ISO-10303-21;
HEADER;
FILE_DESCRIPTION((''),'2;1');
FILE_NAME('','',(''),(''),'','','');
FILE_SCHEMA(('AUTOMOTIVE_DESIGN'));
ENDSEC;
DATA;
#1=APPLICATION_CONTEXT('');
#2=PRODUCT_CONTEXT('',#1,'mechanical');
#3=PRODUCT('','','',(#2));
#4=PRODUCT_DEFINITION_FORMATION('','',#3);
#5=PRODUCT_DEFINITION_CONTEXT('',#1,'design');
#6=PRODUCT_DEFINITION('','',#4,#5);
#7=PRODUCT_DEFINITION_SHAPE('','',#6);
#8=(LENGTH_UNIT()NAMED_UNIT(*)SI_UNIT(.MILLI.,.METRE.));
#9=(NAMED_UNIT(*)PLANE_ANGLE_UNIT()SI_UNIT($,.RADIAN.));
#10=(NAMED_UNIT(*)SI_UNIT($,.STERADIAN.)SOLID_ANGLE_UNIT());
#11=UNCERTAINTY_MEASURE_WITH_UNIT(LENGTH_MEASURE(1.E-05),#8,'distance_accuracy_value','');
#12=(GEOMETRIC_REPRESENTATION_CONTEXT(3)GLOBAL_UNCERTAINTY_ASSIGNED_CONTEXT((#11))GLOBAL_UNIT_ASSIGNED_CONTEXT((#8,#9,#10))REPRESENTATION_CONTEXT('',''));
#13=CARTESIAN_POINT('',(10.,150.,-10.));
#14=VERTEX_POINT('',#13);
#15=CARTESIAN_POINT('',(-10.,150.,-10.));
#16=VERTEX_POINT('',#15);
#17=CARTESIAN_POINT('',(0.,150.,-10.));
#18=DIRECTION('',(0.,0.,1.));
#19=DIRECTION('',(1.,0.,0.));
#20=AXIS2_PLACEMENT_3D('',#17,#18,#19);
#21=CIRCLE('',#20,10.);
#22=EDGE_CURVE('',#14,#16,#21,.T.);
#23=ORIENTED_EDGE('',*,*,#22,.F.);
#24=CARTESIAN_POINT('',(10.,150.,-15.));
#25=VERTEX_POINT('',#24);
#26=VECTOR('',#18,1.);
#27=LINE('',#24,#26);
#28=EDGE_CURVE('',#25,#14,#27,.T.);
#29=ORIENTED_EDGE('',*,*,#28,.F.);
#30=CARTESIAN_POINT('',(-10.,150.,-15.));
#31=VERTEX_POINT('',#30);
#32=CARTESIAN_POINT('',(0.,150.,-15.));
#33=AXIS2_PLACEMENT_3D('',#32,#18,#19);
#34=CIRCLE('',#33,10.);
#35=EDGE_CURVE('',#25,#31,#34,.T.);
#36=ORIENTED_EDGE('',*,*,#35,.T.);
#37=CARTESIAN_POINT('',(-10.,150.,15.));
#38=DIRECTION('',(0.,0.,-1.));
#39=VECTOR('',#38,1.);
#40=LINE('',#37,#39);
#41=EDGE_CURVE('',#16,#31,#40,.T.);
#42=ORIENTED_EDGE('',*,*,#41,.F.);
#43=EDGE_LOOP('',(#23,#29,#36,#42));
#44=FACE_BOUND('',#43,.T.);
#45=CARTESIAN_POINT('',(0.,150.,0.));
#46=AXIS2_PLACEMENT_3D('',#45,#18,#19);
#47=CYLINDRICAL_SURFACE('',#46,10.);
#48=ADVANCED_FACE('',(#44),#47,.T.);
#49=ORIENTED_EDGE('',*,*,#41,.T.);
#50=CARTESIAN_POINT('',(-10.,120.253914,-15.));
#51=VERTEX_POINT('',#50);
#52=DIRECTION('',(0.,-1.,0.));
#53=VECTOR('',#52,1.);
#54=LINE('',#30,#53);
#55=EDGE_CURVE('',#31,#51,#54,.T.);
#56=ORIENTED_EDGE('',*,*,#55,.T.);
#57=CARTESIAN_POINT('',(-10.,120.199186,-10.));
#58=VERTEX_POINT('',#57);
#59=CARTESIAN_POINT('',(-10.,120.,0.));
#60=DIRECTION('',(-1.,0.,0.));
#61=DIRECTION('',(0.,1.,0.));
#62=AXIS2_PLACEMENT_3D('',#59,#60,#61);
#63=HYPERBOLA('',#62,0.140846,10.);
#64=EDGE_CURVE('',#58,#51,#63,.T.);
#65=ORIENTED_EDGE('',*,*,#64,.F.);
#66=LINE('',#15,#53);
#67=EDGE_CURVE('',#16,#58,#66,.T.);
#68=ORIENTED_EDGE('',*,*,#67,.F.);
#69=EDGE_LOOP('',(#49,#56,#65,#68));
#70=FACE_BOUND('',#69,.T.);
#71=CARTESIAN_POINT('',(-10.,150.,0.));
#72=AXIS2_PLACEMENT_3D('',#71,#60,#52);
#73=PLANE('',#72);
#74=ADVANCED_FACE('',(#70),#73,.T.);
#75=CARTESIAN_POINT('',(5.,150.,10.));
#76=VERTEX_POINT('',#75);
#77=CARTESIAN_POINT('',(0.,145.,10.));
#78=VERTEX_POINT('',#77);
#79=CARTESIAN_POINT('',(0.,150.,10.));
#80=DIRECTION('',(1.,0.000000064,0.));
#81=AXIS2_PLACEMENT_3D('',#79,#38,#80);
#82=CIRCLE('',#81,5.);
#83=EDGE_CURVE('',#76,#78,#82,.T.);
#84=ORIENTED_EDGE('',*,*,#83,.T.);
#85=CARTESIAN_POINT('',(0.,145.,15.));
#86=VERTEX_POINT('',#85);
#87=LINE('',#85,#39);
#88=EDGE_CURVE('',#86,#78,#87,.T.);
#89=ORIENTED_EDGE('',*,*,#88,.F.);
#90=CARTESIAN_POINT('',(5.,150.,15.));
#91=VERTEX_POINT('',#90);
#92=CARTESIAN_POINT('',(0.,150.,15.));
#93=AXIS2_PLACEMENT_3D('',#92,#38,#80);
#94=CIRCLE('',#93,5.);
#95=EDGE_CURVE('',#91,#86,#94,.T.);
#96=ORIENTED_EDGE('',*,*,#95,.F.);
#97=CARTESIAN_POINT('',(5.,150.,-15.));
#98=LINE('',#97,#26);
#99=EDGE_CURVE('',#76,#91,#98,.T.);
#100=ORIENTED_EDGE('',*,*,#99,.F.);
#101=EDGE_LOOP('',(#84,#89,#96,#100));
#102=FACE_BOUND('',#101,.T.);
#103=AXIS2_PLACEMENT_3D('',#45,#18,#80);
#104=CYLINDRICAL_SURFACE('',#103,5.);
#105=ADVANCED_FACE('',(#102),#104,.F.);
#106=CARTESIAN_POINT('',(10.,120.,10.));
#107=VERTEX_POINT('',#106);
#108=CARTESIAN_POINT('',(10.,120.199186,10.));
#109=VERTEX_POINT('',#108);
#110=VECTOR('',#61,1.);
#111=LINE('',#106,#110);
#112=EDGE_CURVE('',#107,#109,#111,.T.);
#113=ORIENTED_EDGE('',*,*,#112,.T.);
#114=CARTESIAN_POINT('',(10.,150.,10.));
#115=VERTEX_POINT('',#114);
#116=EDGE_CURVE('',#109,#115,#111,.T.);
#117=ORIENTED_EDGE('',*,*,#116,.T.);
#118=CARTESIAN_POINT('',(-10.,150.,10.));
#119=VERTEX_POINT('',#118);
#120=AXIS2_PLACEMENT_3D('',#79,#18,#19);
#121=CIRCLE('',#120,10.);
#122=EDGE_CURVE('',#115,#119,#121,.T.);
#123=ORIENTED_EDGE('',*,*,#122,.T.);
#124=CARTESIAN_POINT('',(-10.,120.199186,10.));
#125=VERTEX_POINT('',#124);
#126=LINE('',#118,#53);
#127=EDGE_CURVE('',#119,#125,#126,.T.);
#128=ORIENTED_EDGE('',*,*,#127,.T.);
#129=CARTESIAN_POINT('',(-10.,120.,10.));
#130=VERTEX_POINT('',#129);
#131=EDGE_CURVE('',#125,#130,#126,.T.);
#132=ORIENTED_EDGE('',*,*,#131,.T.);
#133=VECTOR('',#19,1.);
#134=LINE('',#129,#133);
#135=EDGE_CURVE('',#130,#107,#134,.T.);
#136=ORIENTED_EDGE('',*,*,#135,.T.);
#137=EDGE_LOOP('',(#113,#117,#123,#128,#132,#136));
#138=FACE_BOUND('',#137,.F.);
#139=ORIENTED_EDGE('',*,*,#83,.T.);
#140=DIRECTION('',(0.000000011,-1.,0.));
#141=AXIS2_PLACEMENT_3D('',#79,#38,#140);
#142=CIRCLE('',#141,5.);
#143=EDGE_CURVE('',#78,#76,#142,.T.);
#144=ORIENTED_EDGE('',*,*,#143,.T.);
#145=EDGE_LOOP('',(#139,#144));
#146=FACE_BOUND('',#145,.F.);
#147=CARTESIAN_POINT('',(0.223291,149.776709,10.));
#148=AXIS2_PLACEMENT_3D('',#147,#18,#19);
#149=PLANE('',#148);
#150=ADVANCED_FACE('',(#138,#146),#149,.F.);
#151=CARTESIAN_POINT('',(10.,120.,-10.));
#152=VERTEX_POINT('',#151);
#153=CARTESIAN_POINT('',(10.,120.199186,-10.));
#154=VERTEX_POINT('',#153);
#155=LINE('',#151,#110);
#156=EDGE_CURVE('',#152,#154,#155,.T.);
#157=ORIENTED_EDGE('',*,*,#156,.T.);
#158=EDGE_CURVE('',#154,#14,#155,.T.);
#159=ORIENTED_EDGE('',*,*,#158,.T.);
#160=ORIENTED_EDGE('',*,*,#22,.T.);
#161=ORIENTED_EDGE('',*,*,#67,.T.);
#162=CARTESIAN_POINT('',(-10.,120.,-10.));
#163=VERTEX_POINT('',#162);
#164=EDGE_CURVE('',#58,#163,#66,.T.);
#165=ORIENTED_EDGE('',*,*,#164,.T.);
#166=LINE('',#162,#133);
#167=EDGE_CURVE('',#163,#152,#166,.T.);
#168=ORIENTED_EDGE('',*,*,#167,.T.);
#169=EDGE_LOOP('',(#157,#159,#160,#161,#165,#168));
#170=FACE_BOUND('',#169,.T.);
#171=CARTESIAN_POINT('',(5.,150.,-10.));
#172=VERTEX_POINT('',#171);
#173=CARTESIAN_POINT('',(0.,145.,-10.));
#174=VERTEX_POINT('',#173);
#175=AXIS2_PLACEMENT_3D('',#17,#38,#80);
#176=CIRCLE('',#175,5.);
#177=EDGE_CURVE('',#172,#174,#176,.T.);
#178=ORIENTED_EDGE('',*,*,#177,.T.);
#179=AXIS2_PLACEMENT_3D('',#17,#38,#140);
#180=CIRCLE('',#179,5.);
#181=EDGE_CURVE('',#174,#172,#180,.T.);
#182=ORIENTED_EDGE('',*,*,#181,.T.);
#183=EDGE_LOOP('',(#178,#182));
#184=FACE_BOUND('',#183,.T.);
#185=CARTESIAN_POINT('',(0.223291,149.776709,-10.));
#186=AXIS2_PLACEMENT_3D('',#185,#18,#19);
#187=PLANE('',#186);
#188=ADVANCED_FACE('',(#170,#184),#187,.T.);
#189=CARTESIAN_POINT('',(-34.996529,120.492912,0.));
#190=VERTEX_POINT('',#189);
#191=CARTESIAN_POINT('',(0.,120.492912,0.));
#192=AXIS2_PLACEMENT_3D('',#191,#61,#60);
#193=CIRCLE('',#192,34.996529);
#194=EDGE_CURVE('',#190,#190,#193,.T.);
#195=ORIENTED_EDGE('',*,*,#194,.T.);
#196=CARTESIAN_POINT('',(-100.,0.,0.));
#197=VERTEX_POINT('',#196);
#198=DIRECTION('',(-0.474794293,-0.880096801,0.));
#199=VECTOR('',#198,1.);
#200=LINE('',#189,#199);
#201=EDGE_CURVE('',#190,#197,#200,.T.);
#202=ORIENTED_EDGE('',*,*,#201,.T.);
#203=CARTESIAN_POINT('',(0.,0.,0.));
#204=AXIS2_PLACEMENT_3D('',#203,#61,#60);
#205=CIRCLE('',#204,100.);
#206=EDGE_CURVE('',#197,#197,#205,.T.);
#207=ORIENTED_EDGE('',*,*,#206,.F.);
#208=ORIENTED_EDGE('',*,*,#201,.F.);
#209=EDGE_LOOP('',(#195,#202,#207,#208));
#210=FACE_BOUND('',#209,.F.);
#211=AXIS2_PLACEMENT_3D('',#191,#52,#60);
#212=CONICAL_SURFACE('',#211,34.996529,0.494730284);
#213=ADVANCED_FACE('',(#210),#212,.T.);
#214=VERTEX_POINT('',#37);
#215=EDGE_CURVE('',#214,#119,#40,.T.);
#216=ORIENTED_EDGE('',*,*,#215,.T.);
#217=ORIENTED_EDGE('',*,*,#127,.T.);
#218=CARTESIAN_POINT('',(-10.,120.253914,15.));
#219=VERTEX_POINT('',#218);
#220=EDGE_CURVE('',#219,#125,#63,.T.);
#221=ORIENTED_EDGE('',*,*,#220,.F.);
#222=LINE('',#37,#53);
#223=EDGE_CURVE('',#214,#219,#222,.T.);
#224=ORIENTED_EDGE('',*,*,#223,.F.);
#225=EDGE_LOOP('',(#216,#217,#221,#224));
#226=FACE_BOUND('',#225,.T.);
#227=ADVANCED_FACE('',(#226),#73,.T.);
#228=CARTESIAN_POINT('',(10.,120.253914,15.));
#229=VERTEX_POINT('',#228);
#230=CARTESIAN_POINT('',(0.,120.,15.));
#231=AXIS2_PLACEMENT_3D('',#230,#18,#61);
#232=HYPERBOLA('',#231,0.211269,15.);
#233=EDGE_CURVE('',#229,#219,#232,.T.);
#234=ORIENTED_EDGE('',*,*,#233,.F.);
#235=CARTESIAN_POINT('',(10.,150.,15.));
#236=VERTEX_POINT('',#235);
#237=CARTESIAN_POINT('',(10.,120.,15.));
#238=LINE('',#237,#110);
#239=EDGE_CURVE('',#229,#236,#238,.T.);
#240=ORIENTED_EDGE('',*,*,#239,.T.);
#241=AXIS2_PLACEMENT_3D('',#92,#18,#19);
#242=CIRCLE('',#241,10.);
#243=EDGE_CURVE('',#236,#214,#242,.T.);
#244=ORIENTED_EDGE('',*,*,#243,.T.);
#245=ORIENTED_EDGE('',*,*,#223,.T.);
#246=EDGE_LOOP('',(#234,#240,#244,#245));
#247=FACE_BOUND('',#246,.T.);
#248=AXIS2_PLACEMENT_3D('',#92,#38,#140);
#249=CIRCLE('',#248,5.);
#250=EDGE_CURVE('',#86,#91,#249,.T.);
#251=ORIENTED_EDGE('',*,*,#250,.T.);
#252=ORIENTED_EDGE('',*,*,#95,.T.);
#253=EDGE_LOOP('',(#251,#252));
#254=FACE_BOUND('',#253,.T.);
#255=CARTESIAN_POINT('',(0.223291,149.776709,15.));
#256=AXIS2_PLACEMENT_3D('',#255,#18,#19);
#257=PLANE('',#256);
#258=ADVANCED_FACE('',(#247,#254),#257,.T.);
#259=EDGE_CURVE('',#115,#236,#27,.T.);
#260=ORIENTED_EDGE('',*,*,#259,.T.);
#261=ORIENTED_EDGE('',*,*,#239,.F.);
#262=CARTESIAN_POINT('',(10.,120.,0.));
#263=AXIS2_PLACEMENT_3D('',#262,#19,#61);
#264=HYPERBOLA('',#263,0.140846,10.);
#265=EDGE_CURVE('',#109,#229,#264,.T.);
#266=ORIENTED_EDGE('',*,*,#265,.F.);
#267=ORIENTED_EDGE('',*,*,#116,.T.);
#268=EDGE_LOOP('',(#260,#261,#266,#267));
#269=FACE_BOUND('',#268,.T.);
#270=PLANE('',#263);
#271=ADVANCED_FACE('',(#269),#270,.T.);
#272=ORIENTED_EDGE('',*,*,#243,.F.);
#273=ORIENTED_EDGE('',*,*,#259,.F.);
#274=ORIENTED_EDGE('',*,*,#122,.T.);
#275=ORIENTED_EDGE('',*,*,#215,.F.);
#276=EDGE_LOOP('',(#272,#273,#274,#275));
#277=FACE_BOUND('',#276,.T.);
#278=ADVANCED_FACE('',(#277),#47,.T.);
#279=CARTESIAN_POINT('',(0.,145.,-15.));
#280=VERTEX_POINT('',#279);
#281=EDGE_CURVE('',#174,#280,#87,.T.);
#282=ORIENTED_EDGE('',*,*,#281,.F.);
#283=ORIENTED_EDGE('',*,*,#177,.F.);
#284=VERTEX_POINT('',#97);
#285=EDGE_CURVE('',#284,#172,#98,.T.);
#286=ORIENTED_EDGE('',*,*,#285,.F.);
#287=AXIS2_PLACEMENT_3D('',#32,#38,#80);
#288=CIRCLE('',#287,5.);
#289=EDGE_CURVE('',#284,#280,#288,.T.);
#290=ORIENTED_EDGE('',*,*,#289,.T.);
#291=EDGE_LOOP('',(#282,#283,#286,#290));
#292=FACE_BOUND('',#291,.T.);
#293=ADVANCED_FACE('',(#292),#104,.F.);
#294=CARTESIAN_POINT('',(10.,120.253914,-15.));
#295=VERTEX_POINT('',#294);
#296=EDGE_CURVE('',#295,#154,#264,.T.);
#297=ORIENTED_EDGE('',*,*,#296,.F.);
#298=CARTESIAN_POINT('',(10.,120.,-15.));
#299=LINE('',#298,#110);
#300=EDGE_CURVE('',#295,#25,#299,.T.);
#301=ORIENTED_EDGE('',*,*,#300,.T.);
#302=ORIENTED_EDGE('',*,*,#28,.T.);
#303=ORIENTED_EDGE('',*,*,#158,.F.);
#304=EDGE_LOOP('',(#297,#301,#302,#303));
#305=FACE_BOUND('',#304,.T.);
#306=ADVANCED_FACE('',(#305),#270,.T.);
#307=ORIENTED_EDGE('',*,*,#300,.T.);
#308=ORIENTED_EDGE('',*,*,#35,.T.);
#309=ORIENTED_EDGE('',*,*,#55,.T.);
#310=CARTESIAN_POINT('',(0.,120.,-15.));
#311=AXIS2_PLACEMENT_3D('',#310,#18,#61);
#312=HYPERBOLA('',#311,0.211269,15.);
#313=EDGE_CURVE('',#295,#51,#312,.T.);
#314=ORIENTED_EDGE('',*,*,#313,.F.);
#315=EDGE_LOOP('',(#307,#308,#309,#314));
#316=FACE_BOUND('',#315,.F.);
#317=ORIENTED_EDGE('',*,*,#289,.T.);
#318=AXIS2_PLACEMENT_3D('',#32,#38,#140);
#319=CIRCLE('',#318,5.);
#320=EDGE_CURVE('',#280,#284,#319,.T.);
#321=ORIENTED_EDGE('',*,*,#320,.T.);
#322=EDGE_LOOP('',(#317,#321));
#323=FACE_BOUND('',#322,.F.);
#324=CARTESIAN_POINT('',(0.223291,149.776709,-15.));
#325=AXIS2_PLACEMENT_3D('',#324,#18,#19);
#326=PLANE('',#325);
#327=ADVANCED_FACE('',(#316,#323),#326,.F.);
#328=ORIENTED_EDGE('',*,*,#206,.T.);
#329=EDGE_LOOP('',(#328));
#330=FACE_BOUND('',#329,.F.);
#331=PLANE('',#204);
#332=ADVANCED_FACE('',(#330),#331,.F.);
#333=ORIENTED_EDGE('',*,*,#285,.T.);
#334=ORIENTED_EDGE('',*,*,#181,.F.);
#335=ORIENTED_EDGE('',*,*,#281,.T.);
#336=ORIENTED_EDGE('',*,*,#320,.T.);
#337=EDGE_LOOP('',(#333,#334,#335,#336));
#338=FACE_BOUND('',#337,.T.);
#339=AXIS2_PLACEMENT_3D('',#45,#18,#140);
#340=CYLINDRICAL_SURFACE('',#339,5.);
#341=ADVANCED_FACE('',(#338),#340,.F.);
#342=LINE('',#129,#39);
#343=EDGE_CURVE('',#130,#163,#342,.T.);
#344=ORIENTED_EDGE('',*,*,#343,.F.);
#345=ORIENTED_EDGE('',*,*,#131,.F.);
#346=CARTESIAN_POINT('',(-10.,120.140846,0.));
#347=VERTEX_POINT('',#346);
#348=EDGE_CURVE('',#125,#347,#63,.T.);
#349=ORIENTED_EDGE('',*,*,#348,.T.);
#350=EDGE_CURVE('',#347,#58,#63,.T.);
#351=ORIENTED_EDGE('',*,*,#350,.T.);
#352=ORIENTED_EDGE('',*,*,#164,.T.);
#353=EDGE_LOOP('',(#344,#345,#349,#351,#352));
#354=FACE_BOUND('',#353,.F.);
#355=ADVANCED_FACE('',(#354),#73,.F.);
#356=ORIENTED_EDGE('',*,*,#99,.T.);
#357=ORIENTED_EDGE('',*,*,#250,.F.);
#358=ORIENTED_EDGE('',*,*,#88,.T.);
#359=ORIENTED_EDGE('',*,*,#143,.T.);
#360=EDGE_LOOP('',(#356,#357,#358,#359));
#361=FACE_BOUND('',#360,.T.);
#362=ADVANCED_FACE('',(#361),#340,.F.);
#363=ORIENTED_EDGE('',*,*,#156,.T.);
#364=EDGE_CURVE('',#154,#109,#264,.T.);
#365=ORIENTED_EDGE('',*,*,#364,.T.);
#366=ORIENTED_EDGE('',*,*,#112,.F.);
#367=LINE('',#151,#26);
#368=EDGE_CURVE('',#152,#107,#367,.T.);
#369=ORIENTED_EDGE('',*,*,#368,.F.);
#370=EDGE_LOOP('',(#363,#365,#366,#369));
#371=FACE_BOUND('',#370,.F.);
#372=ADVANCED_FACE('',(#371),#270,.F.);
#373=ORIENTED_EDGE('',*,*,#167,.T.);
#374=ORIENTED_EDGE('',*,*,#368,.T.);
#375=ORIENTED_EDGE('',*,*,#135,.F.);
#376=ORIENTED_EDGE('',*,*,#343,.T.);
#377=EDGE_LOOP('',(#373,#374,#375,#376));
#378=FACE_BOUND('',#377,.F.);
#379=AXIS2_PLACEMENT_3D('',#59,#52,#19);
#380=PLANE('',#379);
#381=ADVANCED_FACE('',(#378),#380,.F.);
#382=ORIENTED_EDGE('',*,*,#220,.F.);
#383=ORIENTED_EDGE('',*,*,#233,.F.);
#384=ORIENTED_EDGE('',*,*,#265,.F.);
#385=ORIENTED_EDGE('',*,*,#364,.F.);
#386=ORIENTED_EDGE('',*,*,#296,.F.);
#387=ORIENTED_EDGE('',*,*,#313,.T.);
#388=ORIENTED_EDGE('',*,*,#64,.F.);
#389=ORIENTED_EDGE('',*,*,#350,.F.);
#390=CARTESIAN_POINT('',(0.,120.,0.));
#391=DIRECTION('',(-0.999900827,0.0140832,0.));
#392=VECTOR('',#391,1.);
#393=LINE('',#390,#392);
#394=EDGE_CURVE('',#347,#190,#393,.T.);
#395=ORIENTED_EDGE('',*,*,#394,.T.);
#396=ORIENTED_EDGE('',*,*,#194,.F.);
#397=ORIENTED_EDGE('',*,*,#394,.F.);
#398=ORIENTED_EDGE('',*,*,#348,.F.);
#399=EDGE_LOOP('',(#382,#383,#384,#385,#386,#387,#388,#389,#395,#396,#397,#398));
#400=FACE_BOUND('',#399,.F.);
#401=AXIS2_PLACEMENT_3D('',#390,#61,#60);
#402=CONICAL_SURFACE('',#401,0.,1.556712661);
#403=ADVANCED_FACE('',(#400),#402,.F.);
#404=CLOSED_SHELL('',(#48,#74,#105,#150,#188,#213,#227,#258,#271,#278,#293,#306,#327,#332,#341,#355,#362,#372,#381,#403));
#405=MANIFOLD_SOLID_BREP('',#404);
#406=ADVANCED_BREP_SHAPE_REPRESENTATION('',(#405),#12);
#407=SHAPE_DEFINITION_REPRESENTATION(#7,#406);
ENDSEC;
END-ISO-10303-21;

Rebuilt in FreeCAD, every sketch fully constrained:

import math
import FreeCAD as App
import Part
import Sketcher
from FreeCAD import Vector
Q = App.Units.Quantity


def add_polygon(sketch, points):
    """Adds a closed chain of lines whose ends are joined by coincident constraints."""
    first, n = sketch.GeometryCount, len(points)
    for a, b in zip(points, points[1:] + points[:1]):
        sketch.addGeometry(Part.LineSegment(App.Vector(*a, 0), App.Vector(*b, 0)), False)
    for i in range(n):
        sketch.addConstraint(Sketcher.Constraint("Coincident", first + i, 2, first + (i + 1) % n, 1))

doc = App.newDocument("Part")
body = doc.addObject("PartDesign::Body", "Body")

# Sketch on XY plane
sketch1 = doc.addObject("Sketcher::SketchObject", "Sketch")
body.addObject(sketch1)
sketch1.AttachmentSupport = (doc.XY_Plane, [""])
sketch1.MapMode = "FlatFace"
add_polygon(sketch1, [(-100, 0), (0, 0), (0, 120), (-34.996529, 120.492912)])  # lines 0-3
sketch1.addConstraint(Sketcher.Constraint("Horizontal", 0))
sketch1.addConstraint(Sketcher.Constraint("Vertical", 1))
sketch1.addConstraint(Sketcher.Constraint("Coincident", 0, 2, -1, 1))
sketch1.addConstraint(Sketcher.Constraint("DistanceX", 0, 1, 0, 2, Q("100 mm")))
sketch1.addConstraint(Sketcher.Constraint("DistanceY", 1, 1, 1, 2, Q("120 mm")))
sketch1.addConstraint(Sketcher.Constraint("Distance", 2, Q("35 mm")))
sketch1.addConstraint(Sketcher.Constraint("DistanceX", 2, 2, -1, 1, Q("34.996529 mm")))
revolution = doc.addObject("PartDesign::Revolution", "Revolution")
body.addObject(revolution)
revolution.Profile = sketch1
revolution.ReferenceAxis = (sketch1, ["V_Axis"])
revolution.Angle = 360

# Sketch on XY plane
sketch2 = doc.addObject("Sketcher::SketchObject", "Sketch001")
body.addObject(sketch2)
sketch2.AttachmentSupport = (doc.XY_Plane, [""])
sketch2.MapMode = "FlatFace"
sketch2.addGeometry(Part.LineSegment(Vector(-10, 120, 0), Vector(10, 120, 0)), False)
sketch2.addGeometry(Part.LineSegment(Vector(10, 120, 0), Vector(10, 150, 0)), False)
sketch2.addGeometry(Part.ArcOfCircle(Part.Circle(Vector(0, 150, 0), Vector(0, 0, 1), 10), math.radians(0), math.radians(180)), False)
sketch2.addGeometry(Part.LineSegment(Vector(-10, 150, 0), Vector(-10, 120, 0)), False)
sketch2.addGeometry(Part.ArcOfCircle(Part.Circle(Vector(0, 150, 0), Vector(0, 0, 1), 5), math.radians(0), math.radians(270)), False)
sketch2.addGeometry(Part.ArcOfCircle(Part.Circle(Vector(0, 150, 0), Vector(0, 0, 1), 5), math.radians(-90), math.radians(0)), False)
sketch2.addConstraint(Sketcher.Constraint("Coincident", 0, 2, 1, 1))
sketch2.addConstraint(Sketcher.Constraint("Tangent", 1, 2, 2, 1))
sketch2.addConstraint(Sketcher.Constraint("Tangent", 2, 2, 3, 1))
sketch2.addConstraint(Sketcher.Constraint("Coincident", 3, 2, 0, 1))
sketch2.addConstraint(Sketcher.Constraint("Tangent", 4, 1, 5, 2))
sketch2.addConstraint(Sketcher.Constraint("Coincident", 5, 1, 4, 2))
sketch2.addConstraint(Sketcher.Constraint("Horizontal", 0))
sketch2.addConstraint(Sketcher.Constraint("Vertical", 1))
sketch2.addConstraint(Sketcher.Constraint("Vertical", 3))
sketch2.addConstraint(Sketcher.Constraint("Coincident", 4, 3, 2, 3))
sketch2.addConstraint(Sketcher.Constraint("PointOnObject", 2, 3, -2))
sketch2.addConstraint(Sketcher.Constraint("PointOnObject", 5, 1, -2))
sketch2.addConstraint(Sketcher.Constraint("Horizontal", 2, 2, 4, 1))
sketch2.addConstraint(Sketcher.Constraint("Radius", 2, Q("10 mm")))
sketch2.addConstraint(Sketcher.Constraint("Radius", 4, Q("5 mm")))
sketch2.addConstraint(Sketcher.Constraint("DistanceY", 1, 1, 1, 2, Q("30 mm")))
sketch2.addConstraint(Sketcher.Constraint("DistanceY", -1, 1, 2, 3, Q("150 mm")))
pad1 = doc.addObject("PartDesign::Pad", "Pad")
body.addObject(pad1)
pad1.Profile = sketch2
pad1.Length = 30
pad1.Midplane = True

# Sketch on XY plane
sketch3 = doc.addObject("Sketcher::SketchObject", "Sketch002")
body.addObject(sketch3)
sketch3.AttachmentSupport = (doc.XY_Plane, [""])
sketch3.MapMode = "FlatFace"
sketch3.addGeometry(Part.LineSegment(Vector(-10, 120, 0), Vector(10, 120, 0)), False)
sketch3.addGeometry(Part.LineSegment(Vector(10, 120, 0), Vector(10, 150, 0)), False)
sketch3.addGeometry(Part.ArcOfCircle(Part.Circle(Vector(0, 150, 0), Vector(0, 0, 1), 10), math.radians(0), math.radians(180)), False)
sketch3.addGeometry(Part.LineSegment(Vector(-10, 150, 0), Vector(-10, 120, 0)), False)
sketch3.addGeometry(Part.ArcOfCircle(Part.Circle(Vector(0, 150, 0), Vector(0, 0, 1), 5), math.radians(0), math.radians(270)), False)
sketch3.addGeometry(Part.ArcOfCircle(Part.Circle(Vector(0, 150, 0), Vector(0, 0, 1), 5), math.radians(-90), math.radians(0)), False)
sketch3.addConstraint(Sketcher.Constraint("Coincident", 0, 2, 1, 1))
sketch3.addConstraint(Sketcher.Constraint("Tangent", 1, 2, 2, 1))
sketch3.addConstraint(Sketcher.Constraint("Tangent", 2, 2, 3, 1))
sketch3.addConstraint(Sketcher.Constraint("Coincident", 3, 2, 0, 1))
sketch3.addConstraint(Sketcher.Constraint("Tangent", 4, 1, 5, 2))
sketch3.addConstraint(Sketcher.Constraint("Coincident", 5, 1, 4, 2))
sketch3.addConstraint(Sketcher.Constraint("Horizontal", 0))
sketch3.addConstraint(Sketcher.Constraint("Vertical", 1))
sketch3.addConstraint(Sketcher.Constraint("Vertical", 3))
sketch3.addConstraint(Sketcher.Constraint("Coincident", 4, 3, 2, 3))
sketch3.addConstraint(Sketcher.Constraint("PointOnObject", 2, 3, -2))
sketch3.addConstraint(Sketcher.Constraint("PointOnObject", 5, 1, -2))
sketch3.addConstraint(Sketcher.Constraint("Horizontal", 2, 2, 4, 1))
sketch3.addConstraint(Sketcher.Constraint("Radius", 2, Q("10 mm")))
sketch3.addConstraint(Sketcher.Constraint("Radius", 4, Q("5 mm")))
sketch3.addConstraint(Sketcher.Constraint("DistanceY", 1, 1, 1, 2, Q("30 mm")))
sketch3.addConstraint(Sketcher.Constraint("DistanceY", -1, 1, 2, 3, Q("150 mm")))
pocket1 = doc.addObject("PartDesign::Pocket", "Pocket")
body.addObject(pocket1)
pocket1.Profile = sketch3
pocket1.Length = 20
pocket1.Midplane = True

doc.recompute()
